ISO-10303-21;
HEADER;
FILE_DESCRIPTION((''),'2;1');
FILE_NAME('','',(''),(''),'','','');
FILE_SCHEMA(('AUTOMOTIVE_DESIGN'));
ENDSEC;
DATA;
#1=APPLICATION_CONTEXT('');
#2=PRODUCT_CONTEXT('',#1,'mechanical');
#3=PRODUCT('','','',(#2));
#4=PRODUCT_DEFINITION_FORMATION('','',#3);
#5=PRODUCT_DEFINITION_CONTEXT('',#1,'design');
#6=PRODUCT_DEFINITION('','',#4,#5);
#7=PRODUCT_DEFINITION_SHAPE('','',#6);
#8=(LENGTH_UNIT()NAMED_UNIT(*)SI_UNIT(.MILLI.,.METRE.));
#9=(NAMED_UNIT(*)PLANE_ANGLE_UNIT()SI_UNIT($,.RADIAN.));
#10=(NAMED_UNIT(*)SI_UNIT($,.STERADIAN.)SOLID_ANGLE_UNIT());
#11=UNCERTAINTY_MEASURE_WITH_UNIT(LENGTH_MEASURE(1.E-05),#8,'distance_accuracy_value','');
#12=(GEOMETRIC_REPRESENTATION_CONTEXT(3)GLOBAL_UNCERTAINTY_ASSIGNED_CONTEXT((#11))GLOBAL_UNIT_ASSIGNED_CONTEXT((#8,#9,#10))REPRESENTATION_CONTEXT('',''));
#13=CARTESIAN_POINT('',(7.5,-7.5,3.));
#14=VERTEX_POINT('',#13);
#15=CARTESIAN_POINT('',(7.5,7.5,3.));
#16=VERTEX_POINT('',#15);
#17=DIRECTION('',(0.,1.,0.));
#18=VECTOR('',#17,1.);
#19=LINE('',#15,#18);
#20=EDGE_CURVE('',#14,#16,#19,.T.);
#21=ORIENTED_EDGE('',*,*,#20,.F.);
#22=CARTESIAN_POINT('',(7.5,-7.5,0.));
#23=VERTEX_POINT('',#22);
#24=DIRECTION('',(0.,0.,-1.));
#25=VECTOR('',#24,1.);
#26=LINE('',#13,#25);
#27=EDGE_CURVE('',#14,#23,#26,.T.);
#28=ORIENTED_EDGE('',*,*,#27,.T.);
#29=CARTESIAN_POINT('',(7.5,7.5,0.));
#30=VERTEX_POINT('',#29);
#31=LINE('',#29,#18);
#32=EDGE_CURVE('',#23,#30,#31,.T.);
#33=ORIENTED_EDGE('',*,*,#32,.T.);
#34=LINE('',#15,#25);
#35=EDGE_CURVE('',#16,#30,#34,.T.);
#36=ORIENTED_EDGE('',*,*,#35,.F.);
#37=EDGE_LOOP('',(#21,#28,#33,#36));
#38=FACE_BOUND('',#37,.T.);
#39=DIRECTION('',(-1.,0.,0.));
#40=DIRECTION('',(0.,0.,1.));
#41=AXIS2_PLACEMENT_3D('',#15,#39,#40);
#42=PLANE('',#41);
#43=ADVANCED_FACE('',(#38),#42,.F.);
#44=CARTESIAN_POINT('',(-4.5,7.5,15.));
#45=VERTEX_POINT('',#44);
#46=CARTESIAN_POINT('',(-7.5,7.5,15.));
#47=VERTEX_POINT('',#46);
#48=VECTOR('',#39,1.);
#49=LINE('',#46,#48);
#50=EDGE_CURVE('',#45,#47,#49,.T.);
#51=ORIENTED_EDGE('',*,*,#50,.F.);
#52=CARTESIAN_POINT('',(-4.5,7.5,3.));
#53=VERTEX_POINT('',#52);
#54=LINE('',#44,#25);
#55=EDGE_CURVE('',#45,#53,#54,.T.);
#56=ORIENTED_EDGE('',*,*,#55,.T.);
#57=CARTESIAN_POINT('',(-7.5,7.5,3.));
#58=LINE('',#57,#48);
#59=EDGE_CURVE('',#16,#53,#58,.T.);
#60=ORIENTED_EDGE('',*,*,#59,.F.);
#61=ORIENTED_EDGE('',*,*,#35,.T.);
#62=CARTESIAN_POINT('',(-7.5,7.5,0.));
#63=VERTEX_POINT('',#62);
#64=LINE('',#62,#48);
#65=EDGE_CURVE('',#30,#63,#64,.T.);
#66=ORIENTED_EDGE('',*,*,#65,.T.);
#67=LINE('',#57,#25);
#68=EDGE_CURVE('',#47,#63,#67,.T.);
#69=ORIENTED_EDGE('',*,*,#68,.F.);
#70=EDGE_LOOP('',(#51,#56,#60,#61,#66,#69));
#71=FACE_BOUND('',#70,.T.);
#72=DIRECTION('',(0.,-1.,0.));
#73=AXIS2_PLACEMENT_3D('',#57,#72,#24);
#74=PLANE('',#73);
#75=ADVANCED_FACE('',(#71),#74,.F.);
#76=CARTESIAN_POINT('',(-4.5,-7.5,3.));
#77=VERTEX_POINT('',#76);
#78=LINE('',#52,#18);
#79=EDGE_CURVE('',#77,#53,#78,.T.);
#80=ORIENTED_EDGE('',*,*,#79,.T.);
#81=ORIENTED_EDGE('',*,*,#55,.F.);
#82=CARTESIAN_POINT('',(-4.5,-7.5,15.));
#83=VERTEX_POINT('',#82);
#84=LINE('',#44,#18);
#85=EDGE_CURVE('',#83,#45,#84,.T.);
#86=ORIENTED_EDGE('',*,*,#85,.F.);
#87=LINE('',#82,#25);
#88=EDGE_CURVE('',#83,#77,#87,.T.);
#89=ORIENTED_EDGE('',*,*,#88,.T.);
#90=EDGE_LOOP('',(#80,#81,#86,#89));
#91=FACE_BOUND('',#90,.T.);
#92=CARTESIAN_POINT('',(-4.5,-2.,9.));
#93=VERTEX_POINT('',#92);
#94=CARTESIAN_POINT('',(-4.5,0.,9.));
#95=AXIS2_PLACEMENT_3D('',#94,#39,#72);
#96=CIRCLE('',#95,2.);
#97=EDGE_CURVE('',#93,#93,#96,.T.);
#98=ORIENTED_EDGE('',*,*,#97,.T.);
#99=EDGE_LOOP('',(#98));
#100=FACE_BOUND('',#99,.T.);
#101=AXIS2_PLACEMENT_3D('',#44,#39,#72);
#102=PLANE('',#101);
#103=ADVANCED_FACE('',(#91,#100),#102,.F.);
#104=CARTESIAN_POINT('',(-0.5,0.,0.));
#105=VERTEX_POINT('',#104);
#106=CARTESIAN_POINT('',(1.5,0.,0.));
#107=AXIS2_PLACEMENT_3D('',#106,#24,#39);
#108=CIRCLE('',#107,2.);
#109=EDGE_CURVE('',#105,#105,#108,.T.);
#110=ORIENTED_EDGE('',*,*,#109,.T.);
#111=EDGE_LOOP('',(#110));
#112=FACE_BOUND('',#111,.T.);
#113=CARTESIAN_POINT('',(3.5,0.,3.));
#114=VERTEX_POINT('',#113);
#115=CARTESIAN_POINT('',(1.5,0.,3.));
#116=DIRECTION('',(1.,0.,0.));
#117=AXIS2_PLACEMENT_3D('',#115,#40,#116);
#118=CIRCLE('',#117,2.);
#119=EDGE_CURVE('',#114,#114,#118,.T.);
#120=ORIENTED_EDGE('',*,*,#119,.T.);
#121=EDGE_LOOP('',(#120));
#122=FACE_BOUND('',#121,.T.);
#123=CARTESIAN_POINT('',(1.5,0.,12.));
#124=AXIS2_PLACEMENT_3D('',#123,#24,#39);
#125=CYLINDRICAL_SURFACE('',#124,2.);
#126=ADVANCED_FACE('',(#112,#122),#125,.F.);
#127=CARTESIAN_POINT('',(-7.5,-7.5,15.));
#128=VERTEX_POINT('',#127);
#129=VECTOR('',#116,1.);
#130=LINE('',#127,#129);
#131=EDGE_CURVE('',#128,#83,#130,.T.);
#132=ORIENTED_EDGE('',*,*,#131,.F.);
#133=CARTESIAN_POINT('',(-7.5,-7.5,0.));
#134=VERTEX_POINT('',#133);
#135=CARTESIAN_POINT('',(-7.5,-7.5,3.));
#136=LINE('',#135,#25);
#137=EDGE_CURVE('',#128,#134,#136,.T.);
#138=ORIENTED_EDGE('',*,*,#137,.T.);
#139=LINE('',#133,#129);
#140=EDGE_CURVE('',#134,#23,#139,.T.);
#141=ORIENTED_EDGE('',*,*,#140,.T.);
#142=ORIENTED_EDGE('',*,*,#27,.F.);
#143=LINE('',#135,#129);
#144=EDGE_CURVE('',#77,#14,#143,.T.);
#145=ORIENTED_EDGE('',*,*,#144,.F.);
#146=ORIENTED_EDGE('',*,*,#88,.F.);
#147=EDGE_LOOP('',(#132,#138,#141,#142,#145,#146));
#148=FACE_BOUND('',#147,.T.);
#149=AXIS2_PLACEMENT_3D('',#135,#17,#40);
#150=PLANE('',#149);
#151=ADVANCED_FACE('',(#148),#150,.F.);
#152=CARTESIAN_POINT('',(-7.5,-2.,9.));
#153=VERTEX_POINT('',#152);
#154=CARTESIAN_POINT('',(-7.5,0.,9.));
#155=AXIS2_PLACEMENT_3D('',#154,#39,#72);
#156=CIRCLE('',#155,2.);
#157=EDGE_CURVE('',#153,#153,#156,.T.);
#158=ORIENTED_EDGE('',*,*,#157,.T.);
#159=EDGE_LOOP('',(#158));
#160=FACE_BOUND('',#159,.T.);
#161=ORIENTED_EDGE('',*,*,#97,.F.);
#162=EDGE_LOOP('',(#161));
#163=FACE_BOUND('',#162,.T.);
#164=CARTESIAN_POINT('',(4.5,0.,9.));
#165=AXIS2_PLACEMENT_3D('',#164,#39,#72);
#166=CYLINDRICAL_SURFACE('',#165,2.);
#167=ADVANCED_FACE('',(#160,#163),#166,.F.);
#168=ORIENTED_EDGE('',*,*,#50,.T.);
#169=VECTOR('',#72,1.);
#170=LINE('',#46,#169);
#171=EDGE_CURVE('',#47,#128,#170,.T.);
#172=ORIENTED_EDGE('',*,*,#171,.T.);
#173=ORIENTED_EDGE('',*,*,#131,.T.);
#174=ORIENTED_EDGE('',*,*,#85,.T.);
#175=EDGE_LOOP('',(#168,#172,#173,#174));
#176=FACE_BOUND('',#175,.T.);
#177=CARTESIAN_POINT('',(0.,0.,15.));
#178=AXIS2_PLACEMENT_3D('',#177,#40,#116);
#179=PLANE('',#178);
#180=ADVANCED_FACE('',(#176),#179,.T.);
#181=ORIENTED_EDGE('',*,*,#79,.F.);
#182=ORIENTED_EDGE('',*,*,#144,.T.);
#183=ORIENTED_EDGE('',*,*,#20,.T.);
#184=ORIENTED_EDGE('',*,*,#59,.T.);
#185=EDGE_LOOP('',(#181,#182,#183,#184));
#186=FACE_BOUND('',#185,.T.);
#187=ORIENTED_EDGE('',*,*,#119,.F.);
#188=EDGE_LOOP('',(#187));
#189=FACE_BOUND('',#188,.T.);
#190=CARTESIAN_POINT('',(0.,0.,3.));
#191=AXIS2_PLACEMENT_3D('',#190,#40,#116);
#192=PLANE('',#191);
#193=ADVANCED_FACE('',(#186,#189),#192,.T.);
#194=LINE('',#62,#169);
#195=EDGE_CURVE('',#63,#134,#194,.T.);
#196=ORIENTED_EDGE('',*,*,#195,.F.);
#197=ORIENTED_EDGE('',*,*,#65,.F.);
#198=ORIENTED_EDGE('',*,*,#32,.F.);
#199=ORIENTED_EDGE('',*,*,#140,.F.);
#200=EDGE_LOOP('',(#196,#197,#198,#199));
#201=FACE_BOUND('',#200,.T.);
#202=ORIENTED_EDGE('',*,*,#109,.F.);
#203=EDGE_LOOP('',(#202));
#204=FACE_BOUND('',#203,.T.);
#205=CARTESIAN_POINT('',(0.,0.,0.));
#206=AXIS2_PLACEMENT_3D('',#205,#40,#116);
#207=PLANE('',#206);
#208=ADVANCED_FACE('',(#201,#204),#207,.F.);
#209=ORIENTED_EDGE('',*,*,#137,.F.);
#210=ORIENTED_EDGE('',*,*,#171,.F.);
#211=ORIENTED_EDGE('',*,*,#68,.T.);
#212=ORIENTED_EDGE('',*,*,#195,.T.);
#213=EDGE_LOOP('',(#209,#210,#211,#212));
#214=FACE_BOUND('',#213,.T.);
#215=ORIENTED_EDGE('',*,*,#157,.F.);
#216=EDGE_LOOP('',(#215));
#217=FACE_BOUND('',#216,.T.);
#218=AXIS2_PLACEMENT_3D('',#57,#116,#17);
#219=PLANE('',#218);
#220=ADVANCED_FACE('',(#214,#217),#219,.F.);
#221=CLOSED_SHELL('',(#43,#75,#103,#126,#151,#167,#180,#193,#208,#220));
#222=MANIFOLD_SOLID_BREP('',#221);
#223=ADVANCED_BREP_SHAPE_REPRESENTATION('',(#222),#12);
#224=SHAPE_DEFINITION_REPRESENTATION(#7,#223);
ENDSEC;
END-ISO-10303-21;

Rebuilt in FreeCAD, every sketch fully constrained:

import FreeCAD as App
import Part
import Sketcher


def add_polygon(sketch, points):
    """Adds a closed chain of lines whose ends are joined by coincident constraints."""
    first, n = sketch.GeometryCount, len(points)
    for a, b in zip(points, points[1:] + points[:1]):
        sketch.addGeometry(Part.LineSegment(App.Vector(*a, 0), App.Vector(*b, 0)), False)
    for i in range(n):
        sketch.addConstraint(Sketcher.Constraint("Coincident", first + i, 2, first + (i + 1) % n, 1))

doc = App.newDocument("Part")
body = doc.addObject("PartDesign::Body", "Body")

sketch1 = body.newObject("Sketcher::SketchObject", "Sketch")
sketch1.AttachmentSupport = (doc.getObject("XY_Plane"), [""])
sketch1.MapMode = "FlatFace"
add_polygon(sketch1, [(-8, 8), (-8, -8), (8, -8), (8, 8)])
sketch1.addConstraint([
    Sketcher.Constraint("Vertical", 0),
    Sketcher.Constraint("Horizontal", 1),
    Sketcher.Constraint("Vertical", 2),
    Sketcher.Constraint("Horizontal", 3),
    Sketcher.Constraint("Symmetric", 0, 2, 2, 2, -1, 1),
    Sketcher.Constraint("Equal", 3, 0),
    Sketcher.Constraint("DistanceX", 1, 1, 1, 2, 15.0),
])
pad1 = body.newObject("PartDesign::Pad", "Pad")
pad1.Profile = sketch1
pad1.Length = 3

sketch2 = body.newObject("Sketcher::SketchObject", "Sketch001")
sketch2.AttachmentSupport = (doc.getObject("XY_Plane"), [""])
sketch2.MapMode = "FlatFace"
sketch2.AttachmentOffset = App.Placement(App.Vector(0, 0, 3), App.Rotation())
add_polygon(sketch2, [(-7.5, 7.5), (-7.5, -7.5), (-4.5, -7.5), (-4.5, 7.5)])
sketch2.addConstraint([
    Sketcher.Constraint("Vertical", 0),
    Sketcher.Constraint("Horizontal", 1),
    Sketcher.Constraint("Vertical", 2),
    Sketcher.Constraint("Horizontal", 3),
    Sketcher.Constraint("DistanceX", 1, 1, 1, 2, 3.0),
    Sketcher.Constraint("DistanceY", 0, 2, 0, 1, 15.0),
    Sketcher.Constraint("DistanceX", 0, 2, -1, 1, 7.5),
    Sketcher.Constraint("DistanceY", 0, 2, -1, 1, 7.5),
])
pad2 = body.newObject("PartDesign::Pad", "Pad001")
pad2.Profile = sketch2
pad2.Length = 12

sketch3 = body.newObject("Sketcher::SketchObject", "Sketch002")
sketch3.AttachmentSupport = (doc.getObject("XY_Plane"), [""])
sketch3.MapMode = "FlatFace"
sketch3.addGeometry(Part.Circle(App.Vector(1.5, 0, 0), App.Vector(0, 0, 1), 2), False)
sketch3.addConstraint([
    Sketcher.Constraint("PointOnObject", 0, 3, -1),
    Sketcher.Constraint("Diameter", 0, 4.0),
    Sketcher.Constraint("DistanceX", -1, 1, 0, 3, 1.5),
])
pocket1 = body.newObject("PartDesign::Pocket", "Pocket")
pocket1.Profile = sketch3
pocket1.Length = 12
pocket1.Reversed = True

sketch4 = body.newObject("Sketcher::SketchObject", "Sketch003")
sketch4.AttachmentSupport = (doc.getObject("YZ_Plane"), [""])
sketch4.MapMode = "FlatFace"
sketch4.AttachmentOffset = App.Placement(App.Vector(0, 0, -7.5), App.Rotation())
sketch4.addGeometry(Part.Circle(App.Vector(0, 9, 0), App.Vector(0, 0, 1), 2), False)
sketch4.addConstraint([
    Sketcher.Constraint("PointOnObject", 0, 3, -2),
    Sketcher.Constraint("Diameter", 0, 4.0),
    Sketcher.Constraint("DistanceY", -1, 1, 0, 3, 9.0),
])
pocket2 = body.newObject("PartDesign::Pocket", "Pocket001")
pocket2.Profile = sketch4
pocket2.Length = 12
pocket2.Reversed = True

doc.recompute()
